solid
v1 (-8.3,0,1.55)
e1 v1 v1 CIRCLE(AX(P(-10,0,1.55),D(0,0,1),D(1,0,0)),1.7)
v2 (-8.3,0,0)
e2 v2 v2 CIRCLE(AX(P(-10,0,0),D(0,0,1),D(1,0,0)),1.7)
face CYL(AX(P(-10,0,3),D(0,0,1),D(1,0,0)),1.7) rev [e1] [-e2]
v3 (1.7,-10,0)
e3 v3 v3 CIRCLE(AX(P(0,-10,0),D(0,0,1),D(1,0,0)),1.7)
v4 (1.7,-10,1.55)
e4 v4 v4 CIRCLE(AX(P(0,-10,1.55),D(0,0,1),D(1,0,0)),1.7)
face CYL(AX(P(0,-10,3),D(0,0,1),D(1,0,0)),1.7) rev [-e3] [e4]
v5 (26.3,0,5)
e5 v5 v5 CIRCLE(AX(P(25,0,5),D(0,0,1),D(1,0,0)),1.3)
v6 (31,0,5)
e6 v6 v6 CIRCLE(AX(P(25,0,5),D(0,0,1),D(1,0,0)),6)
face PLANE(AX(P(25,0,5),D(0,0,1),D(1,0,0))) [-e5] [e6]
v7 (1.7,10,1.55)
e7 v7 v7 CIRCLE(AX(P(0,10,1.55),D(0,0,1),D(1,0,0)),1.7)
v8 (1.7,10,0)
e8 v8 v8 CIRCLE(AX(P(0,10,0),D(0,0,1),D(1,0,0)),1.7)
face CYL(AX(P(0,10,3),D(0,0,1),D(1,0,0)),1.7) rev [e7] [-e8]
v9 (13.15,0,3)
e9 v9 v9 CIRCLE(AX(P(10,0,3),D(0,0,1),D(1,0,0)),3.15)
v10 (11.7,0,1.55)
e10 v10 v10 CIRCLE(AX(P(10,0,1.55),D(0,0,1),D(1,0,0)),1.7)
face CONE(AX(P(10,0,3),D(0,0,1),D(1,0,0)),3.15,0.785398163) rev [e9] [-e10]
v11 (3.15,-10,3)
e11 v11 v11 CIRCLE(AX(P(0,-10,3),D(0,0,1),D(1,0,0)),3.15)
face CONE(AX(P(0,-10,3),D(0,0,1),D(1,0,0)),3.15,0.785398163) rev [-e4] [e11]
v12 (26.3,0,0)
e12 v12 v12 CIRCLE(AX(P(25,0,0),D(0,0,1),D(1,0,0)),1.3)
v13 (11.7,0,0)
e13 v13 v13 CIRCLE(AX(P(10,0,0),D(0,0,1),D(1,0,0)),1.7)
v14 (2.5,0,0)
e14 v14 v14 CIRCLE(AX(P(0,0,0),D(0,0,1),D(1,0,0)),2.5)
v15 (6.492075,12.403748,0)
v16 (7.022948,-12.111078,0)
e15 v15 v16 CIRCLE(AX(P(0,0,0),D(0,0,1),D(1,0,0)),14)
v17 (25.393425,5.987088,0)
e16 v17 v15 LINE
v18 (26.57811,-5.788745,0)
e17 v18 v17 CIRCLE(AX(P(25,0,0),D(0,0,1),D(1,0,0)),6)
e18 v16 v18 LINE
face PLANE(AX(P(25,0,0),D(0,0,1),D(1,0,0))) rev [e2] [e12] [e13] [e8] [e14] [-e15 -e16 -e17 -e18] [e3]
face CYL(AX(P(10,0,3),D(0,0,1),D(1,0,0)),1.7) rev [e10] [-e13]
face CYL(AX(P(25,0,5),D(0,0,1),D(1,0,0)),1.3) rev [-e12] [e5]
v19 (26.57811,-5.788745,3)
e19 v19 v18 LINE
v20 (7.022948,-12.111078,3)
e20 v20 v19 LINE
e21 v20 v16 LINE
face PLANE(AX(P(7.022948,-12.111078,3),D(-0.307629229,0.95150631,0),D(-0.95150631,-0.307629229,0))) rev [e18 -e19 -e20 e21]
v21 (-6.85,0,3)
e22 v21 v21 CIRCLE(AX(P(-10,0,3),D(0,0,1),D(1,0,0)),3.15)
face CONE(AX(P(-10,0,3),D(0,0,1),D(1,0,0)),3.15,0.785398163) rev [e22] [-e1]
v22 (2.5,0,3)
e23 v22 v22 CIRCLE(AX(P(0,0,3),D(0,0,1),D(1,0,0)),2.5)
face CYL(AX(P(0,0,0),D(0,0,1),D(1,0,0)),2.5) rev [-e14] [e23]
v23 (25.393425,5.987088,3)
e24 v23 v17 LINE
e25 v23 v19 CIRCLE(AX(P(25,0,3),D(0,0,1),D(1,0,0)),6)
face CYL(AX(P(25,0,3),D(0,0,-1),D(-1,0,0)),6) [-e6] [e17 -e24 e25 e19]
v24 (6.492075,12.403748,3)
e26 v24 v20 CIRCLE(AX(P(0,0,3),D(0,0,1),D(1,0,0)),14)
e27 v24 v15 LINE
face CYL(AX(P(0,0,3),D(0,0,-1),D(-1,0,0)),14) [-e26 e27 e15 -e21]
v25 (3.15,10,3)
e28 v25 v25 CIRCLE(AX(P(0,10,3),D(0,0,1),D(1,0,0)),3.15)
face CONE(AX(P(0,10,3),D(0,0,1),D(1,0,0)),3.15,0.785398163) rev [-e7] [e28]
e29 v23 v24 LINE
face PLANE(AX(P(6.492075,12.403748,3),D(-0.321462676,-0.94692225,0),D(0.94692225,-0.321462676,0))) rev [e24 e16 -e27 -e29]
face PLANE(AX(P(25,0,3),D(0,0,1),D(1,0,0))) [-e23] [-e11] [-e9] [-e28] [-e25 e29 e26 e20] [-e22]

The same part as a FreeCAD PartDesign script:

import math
import FreeCAD as App
import Part
import Sketcher
from FreeCAD import Vector
Q = App.Units.Quantity

doc = App.newDocument("Part")
body = doc.addObject("PartDesign::Body", "Body")

# Sketch on XY plane
sketch1 = body.newObject("Sketcher::SketchObject", "Sketch")
sketch1.AttachmentSupport = (doc.getObject("XY_Plane"), [""])
sketch1.MapMode = "FlatFace"
sketch1.addGeometry([
    Part.LineSegment(Vector(25, 6, 0), Vector(6, 12, 0)),
    Part.ArcOfCircle(Part.Circle(Vector(0, 0, 0), Vector(0, 0, 1), 14), math.radians(62), math.radians(300)),
    Part.LineSegment(Vector(7, -12, 0), Vector(27, -6, 0)),
    Part.ArcOfCircle(Part.Circle(Vector(25, 0, 0), Vector(0, 0, 1), 6), math.radians(-75), math.radians(86)),
], False)
sketch1.addConstraint([
    Sketcher.Constraint("Coincident", 0, 2, 1, 1),
    Sketcher.Constraint("Coincident", 1, 2, 2, 1),
    Sketcher.Constraint("Coincident", 2, 2, 3, 1),
    Sketcher.Constraint("Coincident", 3, 2, 0, 1),
    Sketcher.Constraint("Coincident", 1, 3, -1, 1),
    Sketcher.Constraint("PointOnObject", 3, 3, -1),
    Sketcher.Constraint("Radius", 1, Q("14 mm")),
    Sketcher.Constraint("Radius", 3, Q("6 mm")),
    Sketcher.Constraint("DistanceX", -1, 1, 3, 3, Q("25 mm")),
    Sketcher.Constraint("DistanceX", -1, 1, 2, 2, Q("26.57811 mm")),
    Sketcher.Constraint("DistanceX", 0, 2, 3, 2, Q("18.901349 mm")),
    Sketcher.Constraint("DistanceY", 3, 2, 0, 2, Q("6.41666 mm")),
    Sketcher.Constraint("Distance", 2, Q("20.551795 mm")),
])
pad1 = body.newObject("PartDesign::Pad", "Pad")
pad1.Profile = sketch1
pad1.Length = 3

# Sketch on XY plane
sketch2 = body.newObject("Sketcher::SketchObject", "Sketch001")
sketch2.AttachmentSupport = (doc.getObject("XY_Plane"), [""])
sketch2.MapMode = "FlatFace"
sketch2.AttachmentOffset = App.Placement(Vector(0, 0, 3), App.Rotation())
sketch2.addGeometry(Part.Circle(Vector(25, 0, 0), Vector(0, 0, 1), 6), False)
sketch2.addConstraint([
    Sketcher.Constraint("PointOnObject", 0, 3, -1),
    Sketcher.Constraint("Diameter", 0, Q("12 mm")),
    Sketcher.Constraint("DistanceX", -1, 1, 0, 3, Q("25 mm")),
])
pad2 = body.newObject("PartDesign::Pad", "Pad001")
pad2.Profile = sketch2
pad2.Length = 2

# Sketch on XY plane
sketch3 = body.newObject("Sketcher::SketchObject", "Sketch002")
sketch3.AttachmentSupport = (doc.getObject("XY_Plane"), [""])
sketch3.MapMode = "FlatFace"
sketch3.AttachmentOffset = App.Placement(Vector(0, 0, 5), App.Rotation())
sketch3.addGeometry(Part.Circle(Vector(25, 0, 0), Vector(0, 0, 1), 1.3), False)
sketch3.addConstraint([
    Sketcher.Constraint("PointOnObject", 0, 3, -1),
    Sketcher.Constraint("Diameter", 0, Q("2.6 mm")),
    Sketcher.Constraint("DistanceX", -1, 1, 0, 3, Q("25 mm")),
])
doc.recompute()
hole = body.newObject("PartDesign::Hole", "Hole")
hole.Profile = sketch3
hole.ThreadType = "None"
hole.Diameter = 2.6
hole.DepthType = "ThroughAll"

# Sketch on XY plane
sketch4 = body.newObject("Sketcher::SketchObject", "Sketch003")
sketch4.AttachmentSupport = (doc.getObject("XY_Plane"), [""])
sketch4.MapMode = "FlatFace"
sketch4.AttachmentOffset = App.Placement(Vector(0, 0, 3), App.Rotation())
sketch4.addGeometry(Part.Circle(Vector(0, 0, 0), Vector(0, 0, 1), 2.5), False)
sketch4.addConstraint([
    Sketcher.Constraint("Coincident", 0, 3, -1, 1),
    Sketcher.Constraint("Diameter", 0, Q("5 mm")),
])
pocket1 = body.newObject("PartDesign::Pocket", "Pocket")
pocket1.Profile = sketch4
pocket1.Type = "ThroughAll"

# Sketch on XY plane
sketch5 = body.newObject("Sketcher::SketchObject", "Sketch004")
sketch5.AttachmentSupport = (doc.getObject("XY_Plane"), [""])
sketch5.MapMode = "FlatFace"
sketch5.AttachmentOffset = App.Placement(Vector(0, 0, 3), App.Rotation())
sketch5.addGeometry([
    Part.Circle(Vector(0, 10, 0), Vector(0, 0, 1), 1.7),
    Part.Circle(Vector(-10, 0, 0), Vector(0, 0, 1), 1.7),
    Part.Circle(Vector(0, -10, 0), Vector(0, 0, 1), 1.7),
    Part.Circle(Vector(10, 0, 0), Vector(0, 0, 1), 1.7),
], False)
sketch5.addConstraint([
    Sketcher.Constraint("Equal", 0, 1),
    Sketcher.Constraint("Equal", 1, 2),
    Sketcher.Constraint("Equal", 2, 3),
    Sketcher.Constraint("Symmetric", 0, 3, 2, 3, -1, 1),
    Sketcher.Constraint("Symmetric", 1, 3, 3, 3, -1, 1),
    Sketcher.Constraint("PointOnObject", 0, 3, -2),
    Sketcher.Constraint("PointOnObject", 1, 3, -1),
    Sketcher.Constraint("Diameter", 0, Q("3.4 mm")),
    Sketcher.Constraint("DistanceY", -1, 1, 0, 3, Q("10 mm")),
    Sketcher.Constraint("DistanceX", 1, 3, -1, 1, Q("10 mm")),
])
doc.recompute()
hole2 = body.newObject("PartDesign::Hole", "Hole001")
hole2.Profile = sketch5
hole2.ThreadType = "None"
hole2.Diameter = 3.4
hole2.DepthType = "Dimension"
hole2.Depth = 6
hole2.DrillPoint = "Angled"
hole2.DrillPointAngle = 118
hole2.HoleCutType = "Countersink"
hole2.HoleCutDiameter = 6.3
hole2.HoleCutCountersinkAngle = 90

doc.recompute()
